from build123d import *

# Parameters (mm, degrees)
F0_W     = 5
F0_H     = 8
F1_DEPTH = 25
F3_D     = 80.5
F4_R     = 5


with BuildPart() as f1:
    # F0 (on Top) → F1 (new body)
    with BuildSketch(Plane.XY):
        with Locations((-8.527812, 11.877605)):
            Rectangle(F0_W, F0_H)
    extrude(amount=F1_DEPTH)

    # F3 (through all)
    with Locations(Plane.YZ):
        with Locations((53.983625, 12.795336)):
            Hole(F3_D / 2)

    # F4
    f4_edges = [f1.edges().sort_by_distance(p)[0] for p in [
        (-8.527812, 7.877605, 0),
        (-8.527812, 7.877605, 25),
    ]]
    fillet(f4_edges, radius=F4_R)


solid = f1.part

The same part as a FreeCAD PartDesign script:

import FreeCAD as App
import Part
import Sketcher

V = App.Vector


def edges_at(feature, points):
    """Names of the edges that pass closest to the given points."""
    edges = feature.Shape.Edges
    near = lambda p: min(range(len(edges)), key=lambda i: edges[i].distToShape(Part.Vertex(*p))[0])
    return sorted({f"Edge{near(p) + 1}" for p in points})

doc = App.newDocument("Part")
body = doc.addObject("PartDesign::Body", "Body")

# Sketch on XY plane
sketch1 = doc.addObject("Sketcher::SketchObject", "Sketch")
body.addObject(sketch1)
sketch1.AttachmentSupport = (doc.XY_Plane, [""])
sketch1.MapMode = "FlatFace"
sketch1.addGeometry([
    Part.LineSegment(V(-11.027812, 15.877605, 0), V(-11.027812, 7.877605, 0)),
    Part.LineSegment(V(-11.027812, 7.877605, 0), V(-6.027812, 7.877605, 0)),
    Part.LineSegment(V(-6.027812, 7.877605, 0), V(-6.027812, 15.877605, 0)),
    Part.LineSegment(V(-6.027812, 15.877605, 0), V(-11.027812, 15.877605, 0)),
], False)
sketch1.addConstraint([
    Sketcher.Constraint("Coincident", 0, 2, 1, 1),
    Sketcher.Constraint("Coincident", 1, 2, 2, 1),
    Sketcher.Constraint("Coincident", 2, 2, 3, 1),
    Sketcher.Constraint("Coincident", 3, 2, 0, 1),
    Sketcher.Constraint("Vertical", 0),
    Sketcher.Constraint("Horizontal", 1),
    Sketcher.Constraint("Vertical", 2),
    Sketcher.Constraint("Horizontal", 3),
    Sketcher.Constraint("DistanceX", 1, 1, 1, 2, 5.0),
    Sketcher.Constraint("DistanceY", 0, 2, 0, 1, 8.0),
    Sketcher.Constraint("DistanceX", 0, 2, -1, 1, 11.027812),
    Sketcher.Constraint("DistanceY", -1, 1, 0, 2, 7.877605),
])
pad1 = doc.addObject("PartDesign::Pad", "Pad")
body.addObject(pad1)
pad1.Profile = sketch1
pad1.Length = 25

# Sketch on YZ plane
sketch2 = doc.addObject("Sketcher::SketchObject", "Sketch001")
body.addObject(sketch2)
sketch2.AttachmentSupport = (doc.YZ_Plane, [""])
sketch2.MapMode = "FlatFace"
sketch2.addGeometry(Part.Circle(V(53.983625, 12.795336, 0), V(0, 0, 1), 40.25), False)
sketch2.addConstraint([
    Sketcher.Constraint("Diameter", 0, 80.5),
    Sketcher.Constraint("DistanceX", -1, 1, 0, 3, 53.983625),
    Sketcher.Constraint("DistanceY", -1, 1, 0, 3, 12.795336),
])
doc.recompute()
hole = doc.addObject("PartDesign::Hole", "Hole")
body.addObject(hole)
hole.Profile = sketch2
hole.ThreadType = "None"
hole.Diameter = 80.5
hole.DepthType = "ThroughAll"
doc.recompute()

fillet = doc.addObject("PartDesign::Fillet", "Fillet")
body.addObject(fillet)
fillet.Base = (hole, edges_at(hole, [(-8.528, 7.878, 0), (-8.528, 7.878, 25)]))
fillet.Radius = 5

doc.recompute()
